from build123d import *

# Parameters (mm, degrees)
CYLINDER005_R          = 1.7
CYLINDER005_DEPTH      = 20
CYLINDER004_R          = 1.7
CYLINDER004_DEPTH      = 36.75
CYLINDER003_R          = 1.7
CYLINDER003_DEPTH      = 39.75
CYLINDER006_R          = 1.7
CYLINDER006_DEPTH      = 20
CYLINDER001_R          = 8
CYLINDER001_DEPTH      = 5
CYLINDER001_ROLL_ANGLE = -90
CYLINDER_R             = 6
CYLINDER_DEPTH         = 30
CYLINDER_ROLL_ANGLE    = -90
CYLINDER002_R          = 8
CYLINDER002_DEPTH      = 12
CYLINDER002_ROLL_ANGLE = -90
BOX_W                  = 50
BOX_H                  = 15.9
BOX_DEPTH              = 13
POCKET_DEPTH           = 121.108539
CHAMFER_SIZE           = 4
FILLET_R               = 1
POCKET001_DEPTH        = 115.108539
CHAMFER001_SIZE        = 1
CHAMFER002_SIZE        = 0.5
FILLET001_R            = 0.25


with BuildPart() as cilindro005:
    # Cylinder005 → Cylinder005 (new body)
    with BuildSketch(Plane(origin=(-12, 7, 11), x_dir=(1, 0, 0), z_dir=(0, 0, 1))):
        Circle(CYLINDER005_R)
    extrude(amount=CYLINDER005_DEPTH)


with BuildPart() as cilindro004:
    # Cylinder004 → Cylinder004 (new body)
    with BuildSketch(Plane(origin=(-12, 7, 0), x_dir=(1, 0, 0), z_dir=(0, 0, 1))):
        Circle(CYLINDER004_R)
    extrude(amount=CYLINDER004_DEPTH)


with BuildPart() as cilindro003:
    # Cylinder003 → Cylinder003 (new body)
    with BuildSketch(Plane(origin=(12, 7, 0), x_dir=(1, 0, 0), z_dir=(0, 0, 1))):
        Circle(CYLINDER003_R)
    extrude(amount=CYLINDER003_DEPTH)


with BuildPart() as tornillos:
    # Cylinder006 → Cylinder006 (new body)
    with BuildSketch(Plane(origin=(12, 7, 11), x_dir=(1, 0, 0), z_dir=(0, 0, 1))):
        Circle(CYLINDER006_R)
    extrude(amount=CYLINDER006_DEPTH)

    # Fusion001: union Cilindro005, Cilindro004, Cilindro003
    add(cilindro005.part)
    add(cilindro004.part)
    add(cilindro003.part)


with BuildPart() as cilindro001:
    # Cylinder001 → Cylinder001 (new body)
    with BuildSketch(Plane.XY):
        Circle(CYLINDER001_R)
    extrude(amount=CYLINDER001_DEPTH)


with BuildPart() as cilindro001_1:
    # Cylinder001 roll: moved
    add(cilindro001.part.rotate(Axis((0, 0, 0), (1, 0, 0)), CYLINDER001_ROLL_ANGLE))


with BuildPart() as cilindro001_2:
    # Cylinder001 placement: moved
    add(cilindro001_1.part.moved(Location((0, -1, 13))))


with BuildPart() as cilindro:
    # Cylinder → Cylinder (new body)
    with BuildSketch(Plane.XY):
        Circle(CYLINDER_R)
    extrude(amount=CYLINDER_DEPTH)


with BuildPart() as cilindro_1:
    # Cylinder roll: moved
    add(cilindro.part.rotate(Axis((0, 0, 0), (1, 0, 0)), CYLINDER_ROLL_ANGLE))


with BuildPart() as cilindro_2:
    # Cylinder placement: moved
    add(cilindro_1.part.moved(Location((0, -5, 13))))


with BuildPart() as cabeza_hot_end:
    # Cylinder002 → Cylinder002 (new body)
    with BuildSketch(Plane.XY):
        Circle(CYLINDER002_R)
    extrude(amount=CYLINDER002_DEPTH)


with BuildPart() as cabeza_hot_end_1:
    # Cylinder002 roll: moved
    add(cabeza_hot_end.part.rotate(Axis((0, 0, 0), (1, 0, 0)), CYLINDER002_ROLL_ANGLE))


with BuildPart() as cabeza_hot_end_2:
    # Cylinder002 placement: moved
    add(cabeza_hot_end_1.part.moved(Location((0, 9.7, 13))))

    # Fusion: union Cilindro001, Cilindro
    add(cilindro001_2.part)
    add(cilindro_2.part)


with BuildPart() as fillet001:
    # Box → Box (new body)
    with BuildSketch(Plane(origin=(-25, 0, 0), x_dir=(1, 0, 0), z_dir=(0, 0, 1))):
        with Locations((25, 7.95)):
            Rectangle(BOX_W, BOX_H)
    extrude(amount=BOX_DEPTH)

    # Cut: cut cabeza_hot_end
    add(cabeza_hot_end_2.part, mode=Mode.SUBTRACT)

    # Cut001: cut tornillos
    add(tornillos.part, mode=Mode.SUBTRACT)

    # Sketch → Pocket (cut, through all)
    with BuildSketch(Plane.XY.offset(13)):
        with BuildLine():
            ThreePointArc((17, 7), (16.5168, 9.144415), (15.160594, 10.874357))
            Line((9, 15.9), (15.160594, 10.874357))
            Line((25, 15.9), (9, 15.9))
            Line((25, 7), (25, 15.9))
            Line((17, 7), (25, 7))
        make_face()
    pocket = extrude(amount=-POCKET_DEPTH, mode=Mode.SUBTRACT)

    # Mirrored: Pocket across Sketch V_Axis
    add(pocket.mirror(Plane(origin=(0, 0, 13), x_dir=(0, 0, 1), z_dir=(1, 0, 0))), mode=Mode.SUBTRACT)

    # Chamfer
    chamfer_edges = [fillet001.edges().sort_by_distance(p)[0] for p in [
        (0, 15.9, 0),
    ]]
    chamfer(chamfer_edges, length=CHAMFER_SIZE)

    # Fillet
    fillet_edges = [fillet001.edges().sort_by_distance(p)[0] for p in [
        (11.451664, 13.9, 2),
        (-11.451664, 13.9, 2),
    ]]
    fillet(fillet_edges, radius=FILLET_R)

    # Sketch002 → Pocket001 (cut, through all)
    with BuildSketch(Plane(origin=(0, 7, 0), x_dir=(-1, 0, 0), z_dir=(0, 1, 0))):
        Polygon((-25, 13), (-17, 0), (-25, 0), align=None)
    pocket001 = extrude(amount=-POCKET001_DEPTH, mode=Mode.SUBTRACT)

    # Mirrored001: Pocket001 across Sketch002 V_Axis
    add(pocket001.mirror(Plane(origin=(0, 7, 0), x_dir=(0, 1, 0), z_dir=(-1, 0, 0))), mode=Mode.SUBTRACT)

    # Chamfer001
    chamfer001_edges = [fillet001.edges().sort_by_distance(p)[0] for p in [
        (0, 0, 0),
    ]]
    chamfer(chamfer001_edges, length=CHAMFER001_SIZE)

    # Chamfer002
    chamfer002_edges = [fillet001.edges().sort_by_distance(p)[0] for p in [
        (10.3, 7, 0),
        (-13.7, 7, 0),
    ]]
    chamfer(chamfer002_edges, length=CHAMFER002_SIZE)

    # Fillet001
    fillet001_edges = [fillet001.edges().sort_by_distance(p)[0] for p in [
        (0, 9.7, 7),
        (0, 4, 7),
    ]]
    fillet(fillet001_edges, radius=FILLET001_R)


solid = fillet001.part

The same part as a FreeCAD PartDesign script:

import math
import FreeCAD as App
import Part
import Sketcher

V = App.Vector
Q = App.Units.Quantity


def edges_at(feature, points):
    """Names of the edges that pass closest to the given points."""
    edges = feature.Shape.Edges
    near = lambda p: min(range(len(edges)), key=lambda i: edges[i].distToShape(Part.Vertex(*p))[0])
    return sorted({f"Edge{near(p) + 1}" for p in points})

doc = App.newDocument("Part")
params = doc.addObject("Spreadsheet::Sheet", "Params")
for row, (alias, value) in enumerate([
    ("sketch1_diameter", "3.4 mm"),
    ("pad1_length", "20 mm"),
    ("sketch2_diameter", "3.4 mm"),
    ("pad2_length", "36.75 mm"),
    ("sketch3_diameter", "3.4 mm"),
    ("pad3_length", "39.75 mm"),
    ("sketch4_diameter", "3.4 mm"),
    ("pad4_length", "20 mm"),
    ("sketch5_diameter", "16 mm"),
    ("pad5_length", "5 mm"),
    ("sketch6_diameter", "12 mm"),
    ("pad6_length", "30 mm"),
    ("sketch7_diameter", "16 mm"),
    ("pad7_length", "12 mm"),
    ("sketch8_width", "50 mm"),
    ("sketch8_height", "15.9 mm"),
    ("pad8_length", "13 mm"),
    ("sketch9_radius", "5 mm"),
    ("sketch9_width", "8 mm"),
    ("sketch9_width2", "16 mm"),
    ("sketch9_height", "8.9 mm"),
    ("chamfer_size", "4 mm"),
    ("fillet_radius", "1 mm"),
    ("sketch10_width", "8 mm"),
    ("sketch10_height", "13 mm"),
    ("chamfer2_size", "1 mm"),
    ("chamfer3_size", "0.5 mm"),
    ("fillet2_radius", "0.25 mm"),
], start=1):
    params.set(f"A{row}", alias)
    params.set(f"B{row}", "=" + value)
    params.setAlias(f"B{row}", alias)

body = doc.addObject("PartDesign::Body", "Body")

sketch1 = body.newObject("Sketcher::SketchObject", "Sketch")
sketch1.AttachmentSupport = (doc.getObject("XY_Plane"), [""])
sketch1.MapMode = "FlatFace"
sketch1.AttachmentOffset = App.Placement(V(0, 0, 11), App.Rotation())
sketch1.addGeometry(Part.Circle(V(-12, 7, 0), V(0, 0, 1), 1.7), False)
sketch1.addConstraint([
    Sketcher.Constraint("Diameter", 0, Q("3.4 mm")),
    Sketcher.Constraint("DistanceX", 0, 3, -1, 1, Q("12 mm")),
    Sketcher.Constraint("DistanceY", -1, 1, 0, 3, Q("7 mm")),
])
sketch1.setExpression("Constraints[0]", "Params.sketch1_diameter")
pad1 = body.newObject("PartDesign::Pad", "Pad")
pad1.Profile = sketch1
pad1.setExpression("Length", "Params.pad1_length")
body2 = doc.addObject("PartDesign::Body", "Body001")

sketch2 = body2.newObject("Sketcher::SketchObject", "Sketch001")
sketch2.AttachmentSupport = (doc.getObject("XY_Plane001"), [""])
sketch2.MapMode = "FlatFace"
sketch2.addGeometry(Part.Circle(V(-12, 7, 0), V(0, 0, 1), 1.7), False)
sketch2.addConstraint([
    Sketcher.Constraint("Diameter", 0, Q("3.4 mm")),
    Sketcher.Constraint("DistanceX", 0, 3, -1, 1, Q("12 mm")),
    Sketcher.Constraint("DistanceY", -1, 1, 0, 3, Q("7 mm")),
])
sketch2.setExpression("Constraints[0]", "Params.sketch2_diameter")
pad2 = body2.newObject("PartDesign::Pad", "Pad001")
pad2.Profile = sketch2
pad2.setExpression("Length", "Params.pad2_length")
body3 = doc.addObject("PartDesign::Body", "Body002")

sketch3 = body3.newObject("Sketcher::SketchObject", "Sketch002")
sketch3.AttachmentSupport = (doc.getObject("XY_Plane002"), [""])
sketch3.MapMode = "FlatFace"
sketch3.addGeometry(Part.Circle(V(12, 7, 0), V(0, 0, 1), 1.7), False)
sketch3.addConstraint([
    Sketcher.Constraint("Diameter", 0, Q("3.4 mm")),
    Sketcher.Constraint("DistanceX", -1, 1, 0, 3, Q("12 mm")),
    Sketcher.Constraint("DistanceY", -1, 1, 0, 3, Q("7 mm")),
])
sketch3.setExpression("Constraints[0]", "Params.sketch3_diameter")
pad3 = body3.newObject("PartDesign::Pad", "Pad002")
pad3.Profile = sketch3
pad3.setExpression("Length", "Params.pad3_length")
body4 = doc.addObject("PartDesign::Body", "Body003")
body4.AllowCompound = True

sketch4 = body4.newObject("Sketcher::SketchObject", "Sketch003")
sketch4.AttachmentSupport = (doc.getObject("XY_Plane003"), [""])
sketch4.MapMode = "FlatFace"
sketch4.AttachmentOffset = App.Placement(V(0, 0, 11), App.Rotation())
sketch4.addGeometry(Part.Circle(V(12, 7, 0), V(0, 0, 1), 1.7), False)
sketch4.addConstraint([
    Sketcher.Constraint("Diameter", 0, Q("3.4 mm")),
    Sketcher.Constraint("DistanceX", -1, 1, 0, 3, Q("12 mm")),
    Sketcher.Constraint("DistanceY", -1, 1, 0, 3, Q("7 mm")),
])
sketch4.setExpression("Constraints[0]", "Params.sketch4_diameter")
pad4 = body4.newObject("PartDesign::Pad", "Pad003")
pad4.Profile = sketch4
pad4.setExpression("Length", "Params.pad4_length")
doc.recompute()

boolean = body4.newObject("PartDesign::Boolean", "Boolean")
boolean.Type = "Fuse"
boolean.addObjects([body])
doc.recompute()

boolean2 = body4.newObject("PartDesign::Boolean", "Boolean001")
boolean2.Type = "Fuse"
boolean2.addObjects([body2])
doc.recompute()

boolean3 = body4.newObject("PartDesign::Boolean", "Boolean002")
boolean3.Type = "Fuse"
boolean3.addObjects([body3])
body5 = doc.addObject("PartDesign::Body", "Body004")

sketch5 = body5.newObject("Sketcher::SketchObject", "Sketch004")
sketch5.AttachmentSupport = (doc.getObject("XY_Plane004"), [""])
sketch5.MapMode = "FlatFace"
sketch5.addGeometry(Part.Circle(V(0, 0, 0), V(0, 0, 1), 8), False)
sketch5.addConstraint([
    Sketcher.Constraint("Coincident", 0, 3, -1, 1),
    Sketcher.Constraint("Diameter", 0, Q("16 mm")),
])
sketch5.setExpression("Constraints[1]", "Params.sketch5_diameter")
pad5 = body5.newObject("PartDesign::Pad", "Pad004")
pad5.Profile = sketch5
pad5.setExpression("Length", "Params.pad5_length")
body6 = doc.addObject("PartDesign::Body", "Body005")
doc.recompute()

body5.Placement = App.Placement(V(0, 0, 0), App.Rotation(V(1, 0, 0), 270))
boolean4 = body6.newObject("PartDesign::Boolean", "Boolean003")
boolean4.Type = "Fuse"
boolean4.addObjects([body5])
body7 = doc.addObject("PartDesign::Body", "Body006")
doc.recompute()

body6.Placement = App.Placement(V(0, -1, 13), App.Rotation(V(0, 0, 1), 0))
boolean5 = body7.newObject("PartDesign::Boolean", "Boolean004")
boolean5.Type = "Fuse"
boolean5.addObjects([body6])
body8 = doc.addObject("PartDesign::Body", "Body007")

sketch6 = body8.newObject("Sketcher::SketchObject", "Sketch005")
sketch6.AttachmentSupport = (doc.getObject("XY_Plane007"), [""])
sketch6.MapMode = "FlatFace"
sketch6.addGeometry(Part.Circle(V(0, 0, 0), V(0, 0, 1), 6), False)
sketch6.addConstraint([
    Sketcher.Constraint("Coincident", 0, 3, -1, 1),
    Sketcher.Constraint("Diameter", 0, Q("12 mm")),
])
sketch6.setExpression("Constraints[1]", "Params.sketch6_diameter")
pad6 = body8.newObject("PartDesign::Pad", "Pad005")
pad6.Profile = sketch6
pad6.setExpression("Length", "Params.pad6_length")
body9 = doc.addObject("PartDesign::Body", "Body008")
doc.recompute()

body8.Placement = App.Placement(V(0, 0, 0), App.Rotation(V(1, 0, 0), 270))
boolean6 = body9.newObject("PartDesign::Boolean", "Boolean005")
boolean6.Type = "Fuse"
boolean6.addObjects([body8])
body10 = doc.addObject("PartDesign::Body", "Body009")
doc.recompute()

body9.Placement = App.Placement(V(0, -5, 13), App.Rotation(V(0, 0, 1), 0))
boolean7 = body10.newObject("PartDesign::Boolean", "Boolean006")
boolean7.Type = "Fuse"
boolean7.addObjects([body9])
body11 = doc.addObject("PartDesign::Body", "Body010")

sketch7 = body11.newObject("Sketcher::SketchObject", "Sketch006")
sketch7.AttachmentSupport = (doc.getObject("XY_Plane010"), [""])
sketch7.MapMode = "FlatFace"
sketch7.addGeometry(Part.Circle(V(0, 0, 0), V(0, 0, 1), 8), False)
sketch7.addConstraint([
    Sketcher.Constraint("Coincident", 0, 3, -1, 1),
    Sketcher.Constraint("Diameter", 0, Q("16 mm")),
])
sketch7.setExpression("Constraints[1]", "Params.sketch7_diameter")
pad7 = body11.newObject("PartDesign::Pad", "Pad006")
pad7.Profile = sketch7
pad7.setExpression("Length", "Params.pad7_length")
body12 = doc.addObject("PartDesign::Body", "Body011")
doc.recompute()

body11.Placement = App.Placement(V(0, 0, 0), App.Rotation(V(1, 0, 0), 270))
boolean8 = body12.newObject("PartDesign::Boolean", "Boolean007")
boolean8.Type = "Fuse"
boolean8.addObjects([body11])
body13 = doc.addObject("PartDesign::Body", "Body012")
body13.AllowCompound = True
doc.recompute()

body12.Placement = App.Placement(V(0, 9.7, 13), App.Rotation(V(0, 0, 1), 0))
boolean9 = body13.newObject("PartDesign::Boolean", "Boolean008")
boolean9.Type = "Fuse"
boolean9.addObjects([body12])
doc.recompute()

boolean10 = body13.newObject("PartDesign::Boolean", "Boolean009")
boolean10.Type = "Fuse"
boolean10.addObjects([body7])
doc.recompute()

boolean11 = body13.newObject("PartDesign::Boolean", "Boolean010")
boolean11.Type = "Fuse"
boolean11.addObjects([body10])
body14 = doc.addObject("PartDesign::Body", "Body013")

sketch8 = body14.newObject("Sketcher::SketchObject", "Sketch007")
sketch8.AttachmentSupport = (doc.getObject("XY_Plane013"), [""])
sketch8.MapMode = "FlatFace"
sketch8.addGeometry([
    Part.LineSegment(V(-25, 16, 0), V(-25, 0, 0)),
    Part.LineSegment(V(-25, 0, 0), V(25, 0, 0)),
    Part.LineSegment(V(25, 0, 0), V(25, 16, 0)),
    Part.LineSegment(V(25, 16, 0), V(-25, 16, 0)),
], False)
sketch8.addConstraint([
    Sketcher.Constraint("Coincident", 0, 2, 1, 1),
    Sketcher.Constraint("Coincident", 1, 2, 2, 1),
    Sketcher.Constraint("Coincident", 2, 2, 3, 1),
    Sketcher.Constraint("Coincident", 3, 2, 0, 1),
    Sketcher.Constraint("Vertical", 0),
    Sketcher.Constraint("Horizontal", 1),
    Sketcher.Constraint("Vertical", 2),
    Sketcher.Constraint("Horizontal", 3),
    Sketcher.Constraint("Symmetric", 0, 2, 1, 2, -1, 1),
    Sketcher.Constraint("DistanceX", 1, 1, 1, 2, Q("50 mm")),
    Sketcher.Constraint("DistanceY", 0, 2, 0, 1, Q("15.9 mm")),
])
sketch8.setExpression("Constraints[9]", "Params.sketch8_width")
sketch8.setExpression("Constraints[10]", "Params.sketch8_height")
pad8 = body14.newObject("PartDesign::Pad", "Pad007")
pad8.Profile = sketch8
pad8.setExpression("Length", "Params.pad8_length")
doc.recompute()

boolean12 = body14.newObject("PartDesign::Boolean", "Boolean011")
boolean12.Type = "Cut"
boolean12.addObjects([body13])
doc.recompute()

boolean13 = body14.newObject("PartDesign::Boolean", "Boolean012")
boolean13.Type = "Cut"
boolean13.addObjects([body4])

sketch9 = body14.newObject("Sketcher::SketchObject", "Sketch008")
sketch9.AttachmentSupport = (doc.getObject("XY_Plane013"), [""])
sketch9.MapMode = "FlatFace"
sketch9.AttachmentOffset = App.Placement(V(0, 0, 13), App.Rotation())
sketch9.addGeometry([
    Part.ArcOfCircle(Part.Circle(V(12, 7, 0), V(0, 0, 1), 5), math.radians(0), math.radians(51)),
    Part.LineSegment(V(17, 7, 0), V(25, 7, 0)),
    Part.LineSegment(V(25, 7, 0), V(25, 15.9, 0)),
    Part.LineSegment(V(25, 15.9, 0), V(9, 15.9, 0)),
    Part.LineSegment(V(9, 15.9, 0), V(15.2, 10.9, 0)),
], False)
sketch9.addConstraint([
    Sketcher.Constraint("Coincident", 0, 1, 1, 1),
    Sketcher.Constraint("Coincident", 1, 2, 2, 1),
    Sketcher.Constraint("Coincident", 2, 2, 3, 1),
    Sketcher.Constraint("Coincident", 3, 2, 4, 1),
    Sketcher.Constraint("Tangent", 4, 2, 0, 2),
    Sketcher.Constraint("Horizontal", 1),
    Sketcher.Constraint("Vertical", 2),
    Sketcher.Constraint("Horizontal", 3),
    Sketcher.Constraint("Radius", 0, Q("5 mm")),
    Sketcher.Constraint("DistanceX", 1, 1, 1, 2, Q("8 mm")),
    Sketcher.Constraint("DistanceX", 3, 2, 3, 1, Q("16 mm")),
    Sketcher.Constraint("DistanceY", 2, 1, 2, 2, Q("8.9 mm")),
    Sketcher.Constraint("DistanceX", -1, 1, 0, 3, Q("12 mm")),
    Sketcher.Constraint("DistanceY", -1, 1, 0, 3, Q("6.999999 mm")),
    Sketcher.Constraint("DistanceY", -1, 1, 0, 1, Q("7 mm")),
])
sketch9.setExpression("Constraints[8]", "Params.sketch9_radius")
sketch9.setExpression("Constraints[9]", "Params.sketch9_width")
sketch9.setExpression("Constraints[10]", "Params.sketch9_width2")
sketch9.setExpression("Constraints[11]", "Params.sketch9_height")
pocket1 = body14.newObject("PartDesign::Pocket", "Pocket")
pocket1.Profile = sketch9
pocket1.Type = "ThroughAll"
doc.recompute()

mirrored = body14.newObject("PartDesign::Mirrored", "Mirrored")
mirrored.Originals = [pocket1]
mirrored.MirrorPlane = (doc.getObject("YZ_Plane013"), [""])
body14.Tip = mirrored
doc.recompute()

chamfer = body14.newObject("PartDesign::Chamfer", "Chamfer")
chamfer.Base = (mirrored, edges_at(mirrored, [(0, 15.9, 0)]))
chamfer.setExpression("Size", "Params.chamfer_size")
doc.recompute()

fillet = body14.newObject("PartDesign::Fillet", "Fillet")
fillet.Base = (chamfer, edges_at(chamfer, [(11.452, 13.9, 2), (-11.452, 13.9, 2)]))
fillet.setExpression("Radius", "Params.fillet_radius")

sketch10 = body14.newObject("Sketcher::SketchObject", "Sketch009")
sketch10.AttachmentSupport = (doc.getObject("XZ_Plane013"), [""])
sketch10.MapMode = "FlatFace"
sketch10.AttachmentOffset = App.Placement(V(0, 0, -7), App.Rotation())
sketch10.addGeometry([
    Part.LineSegment(V(17, 0, 0), V(25, 13, 0)),
    Part.LineSegment(V(25, 13, 0), V(25, 0, 0)),
    Part.LineSegment(V(25, 0, 0), V(17, 0, 0)),
], False)
sketch10.addConstraint([
    Sketcher.Constraint("Coincident", 0, 2, 1, 1),
    Sketcher.Constraint("Coincident", 1, 2, 2, 1),
    Sketcher.Constraint("Coincident", 2, 2, 0, 1),
    Sketcher.Constraint("Vertical", 1),
    Sketcher.Constraint("Horizontal", 2),
    Sketcher.Constraint("PointOnObject", 1, 2, -1),
    Sketcher.Constraint("DistanceX", 2, 2, 2, 1, Q("8 mm")),
    Sketcher.Constraint("DistanceY", 1, 2, 1, 1, Q("13 mm")),
    Sketcher.Constraint("DistanceX", -1, 1, 0, 2, Q("25 mm")),
])
sketch10.setExpression("Constraints[6]", "Params.sketch10_width")
sketch10.setExpression("Constraints[7]", "Params.sketch10_height")
pocket2 = body14.newObject("PartDesign::Pocket", "Pocket001")
pocket2.Profile = sketch10
pocket2.Type = "ThroughAll"
pocket2.Reversed = True
doc.recompute()

mirrored2 = body14.newObject("PartDesign::Mirrored", "Mirrored001")
mirrored2.Originals = [pocket2]
mirrored2.MirrorPlane = (doc.getObject("YZ_Plane013"), [""])
body14.Tip = mirrored2
doc.recompute()

chamfer2 = body14.newObject("PartDesign::Chamfer", "Chamfer001")
chamfer2.Base = (mirrored2, edges_at(mirrored2, [(0, 0, 0)]))
chamfer2.setExpression("Size", "Params.chamfer2_size")
doc.recompute()

chamfer3 = body14.newObject("PartDesign::Chamfer", "Chamfer002")
chamfer3.Base = (chamfer2, edges_at(chamfer2, [(10.3, 7, 0), (-13.7, 7, 0)]))
chamfer3.setExpression("Size", "Params.chamfer3_size")
doc.recompute()

fillet2 = body14.newObject("PartDesign::Fillet", "Fillet001")
fillet2.Base = (chamfer3, edges_at(chamfer3, [(0, 9.7, 7), (0, 4, 7)]))
fillet2.setExpression("Radius", "Params.fillet2_radius")

doc.recompute()
